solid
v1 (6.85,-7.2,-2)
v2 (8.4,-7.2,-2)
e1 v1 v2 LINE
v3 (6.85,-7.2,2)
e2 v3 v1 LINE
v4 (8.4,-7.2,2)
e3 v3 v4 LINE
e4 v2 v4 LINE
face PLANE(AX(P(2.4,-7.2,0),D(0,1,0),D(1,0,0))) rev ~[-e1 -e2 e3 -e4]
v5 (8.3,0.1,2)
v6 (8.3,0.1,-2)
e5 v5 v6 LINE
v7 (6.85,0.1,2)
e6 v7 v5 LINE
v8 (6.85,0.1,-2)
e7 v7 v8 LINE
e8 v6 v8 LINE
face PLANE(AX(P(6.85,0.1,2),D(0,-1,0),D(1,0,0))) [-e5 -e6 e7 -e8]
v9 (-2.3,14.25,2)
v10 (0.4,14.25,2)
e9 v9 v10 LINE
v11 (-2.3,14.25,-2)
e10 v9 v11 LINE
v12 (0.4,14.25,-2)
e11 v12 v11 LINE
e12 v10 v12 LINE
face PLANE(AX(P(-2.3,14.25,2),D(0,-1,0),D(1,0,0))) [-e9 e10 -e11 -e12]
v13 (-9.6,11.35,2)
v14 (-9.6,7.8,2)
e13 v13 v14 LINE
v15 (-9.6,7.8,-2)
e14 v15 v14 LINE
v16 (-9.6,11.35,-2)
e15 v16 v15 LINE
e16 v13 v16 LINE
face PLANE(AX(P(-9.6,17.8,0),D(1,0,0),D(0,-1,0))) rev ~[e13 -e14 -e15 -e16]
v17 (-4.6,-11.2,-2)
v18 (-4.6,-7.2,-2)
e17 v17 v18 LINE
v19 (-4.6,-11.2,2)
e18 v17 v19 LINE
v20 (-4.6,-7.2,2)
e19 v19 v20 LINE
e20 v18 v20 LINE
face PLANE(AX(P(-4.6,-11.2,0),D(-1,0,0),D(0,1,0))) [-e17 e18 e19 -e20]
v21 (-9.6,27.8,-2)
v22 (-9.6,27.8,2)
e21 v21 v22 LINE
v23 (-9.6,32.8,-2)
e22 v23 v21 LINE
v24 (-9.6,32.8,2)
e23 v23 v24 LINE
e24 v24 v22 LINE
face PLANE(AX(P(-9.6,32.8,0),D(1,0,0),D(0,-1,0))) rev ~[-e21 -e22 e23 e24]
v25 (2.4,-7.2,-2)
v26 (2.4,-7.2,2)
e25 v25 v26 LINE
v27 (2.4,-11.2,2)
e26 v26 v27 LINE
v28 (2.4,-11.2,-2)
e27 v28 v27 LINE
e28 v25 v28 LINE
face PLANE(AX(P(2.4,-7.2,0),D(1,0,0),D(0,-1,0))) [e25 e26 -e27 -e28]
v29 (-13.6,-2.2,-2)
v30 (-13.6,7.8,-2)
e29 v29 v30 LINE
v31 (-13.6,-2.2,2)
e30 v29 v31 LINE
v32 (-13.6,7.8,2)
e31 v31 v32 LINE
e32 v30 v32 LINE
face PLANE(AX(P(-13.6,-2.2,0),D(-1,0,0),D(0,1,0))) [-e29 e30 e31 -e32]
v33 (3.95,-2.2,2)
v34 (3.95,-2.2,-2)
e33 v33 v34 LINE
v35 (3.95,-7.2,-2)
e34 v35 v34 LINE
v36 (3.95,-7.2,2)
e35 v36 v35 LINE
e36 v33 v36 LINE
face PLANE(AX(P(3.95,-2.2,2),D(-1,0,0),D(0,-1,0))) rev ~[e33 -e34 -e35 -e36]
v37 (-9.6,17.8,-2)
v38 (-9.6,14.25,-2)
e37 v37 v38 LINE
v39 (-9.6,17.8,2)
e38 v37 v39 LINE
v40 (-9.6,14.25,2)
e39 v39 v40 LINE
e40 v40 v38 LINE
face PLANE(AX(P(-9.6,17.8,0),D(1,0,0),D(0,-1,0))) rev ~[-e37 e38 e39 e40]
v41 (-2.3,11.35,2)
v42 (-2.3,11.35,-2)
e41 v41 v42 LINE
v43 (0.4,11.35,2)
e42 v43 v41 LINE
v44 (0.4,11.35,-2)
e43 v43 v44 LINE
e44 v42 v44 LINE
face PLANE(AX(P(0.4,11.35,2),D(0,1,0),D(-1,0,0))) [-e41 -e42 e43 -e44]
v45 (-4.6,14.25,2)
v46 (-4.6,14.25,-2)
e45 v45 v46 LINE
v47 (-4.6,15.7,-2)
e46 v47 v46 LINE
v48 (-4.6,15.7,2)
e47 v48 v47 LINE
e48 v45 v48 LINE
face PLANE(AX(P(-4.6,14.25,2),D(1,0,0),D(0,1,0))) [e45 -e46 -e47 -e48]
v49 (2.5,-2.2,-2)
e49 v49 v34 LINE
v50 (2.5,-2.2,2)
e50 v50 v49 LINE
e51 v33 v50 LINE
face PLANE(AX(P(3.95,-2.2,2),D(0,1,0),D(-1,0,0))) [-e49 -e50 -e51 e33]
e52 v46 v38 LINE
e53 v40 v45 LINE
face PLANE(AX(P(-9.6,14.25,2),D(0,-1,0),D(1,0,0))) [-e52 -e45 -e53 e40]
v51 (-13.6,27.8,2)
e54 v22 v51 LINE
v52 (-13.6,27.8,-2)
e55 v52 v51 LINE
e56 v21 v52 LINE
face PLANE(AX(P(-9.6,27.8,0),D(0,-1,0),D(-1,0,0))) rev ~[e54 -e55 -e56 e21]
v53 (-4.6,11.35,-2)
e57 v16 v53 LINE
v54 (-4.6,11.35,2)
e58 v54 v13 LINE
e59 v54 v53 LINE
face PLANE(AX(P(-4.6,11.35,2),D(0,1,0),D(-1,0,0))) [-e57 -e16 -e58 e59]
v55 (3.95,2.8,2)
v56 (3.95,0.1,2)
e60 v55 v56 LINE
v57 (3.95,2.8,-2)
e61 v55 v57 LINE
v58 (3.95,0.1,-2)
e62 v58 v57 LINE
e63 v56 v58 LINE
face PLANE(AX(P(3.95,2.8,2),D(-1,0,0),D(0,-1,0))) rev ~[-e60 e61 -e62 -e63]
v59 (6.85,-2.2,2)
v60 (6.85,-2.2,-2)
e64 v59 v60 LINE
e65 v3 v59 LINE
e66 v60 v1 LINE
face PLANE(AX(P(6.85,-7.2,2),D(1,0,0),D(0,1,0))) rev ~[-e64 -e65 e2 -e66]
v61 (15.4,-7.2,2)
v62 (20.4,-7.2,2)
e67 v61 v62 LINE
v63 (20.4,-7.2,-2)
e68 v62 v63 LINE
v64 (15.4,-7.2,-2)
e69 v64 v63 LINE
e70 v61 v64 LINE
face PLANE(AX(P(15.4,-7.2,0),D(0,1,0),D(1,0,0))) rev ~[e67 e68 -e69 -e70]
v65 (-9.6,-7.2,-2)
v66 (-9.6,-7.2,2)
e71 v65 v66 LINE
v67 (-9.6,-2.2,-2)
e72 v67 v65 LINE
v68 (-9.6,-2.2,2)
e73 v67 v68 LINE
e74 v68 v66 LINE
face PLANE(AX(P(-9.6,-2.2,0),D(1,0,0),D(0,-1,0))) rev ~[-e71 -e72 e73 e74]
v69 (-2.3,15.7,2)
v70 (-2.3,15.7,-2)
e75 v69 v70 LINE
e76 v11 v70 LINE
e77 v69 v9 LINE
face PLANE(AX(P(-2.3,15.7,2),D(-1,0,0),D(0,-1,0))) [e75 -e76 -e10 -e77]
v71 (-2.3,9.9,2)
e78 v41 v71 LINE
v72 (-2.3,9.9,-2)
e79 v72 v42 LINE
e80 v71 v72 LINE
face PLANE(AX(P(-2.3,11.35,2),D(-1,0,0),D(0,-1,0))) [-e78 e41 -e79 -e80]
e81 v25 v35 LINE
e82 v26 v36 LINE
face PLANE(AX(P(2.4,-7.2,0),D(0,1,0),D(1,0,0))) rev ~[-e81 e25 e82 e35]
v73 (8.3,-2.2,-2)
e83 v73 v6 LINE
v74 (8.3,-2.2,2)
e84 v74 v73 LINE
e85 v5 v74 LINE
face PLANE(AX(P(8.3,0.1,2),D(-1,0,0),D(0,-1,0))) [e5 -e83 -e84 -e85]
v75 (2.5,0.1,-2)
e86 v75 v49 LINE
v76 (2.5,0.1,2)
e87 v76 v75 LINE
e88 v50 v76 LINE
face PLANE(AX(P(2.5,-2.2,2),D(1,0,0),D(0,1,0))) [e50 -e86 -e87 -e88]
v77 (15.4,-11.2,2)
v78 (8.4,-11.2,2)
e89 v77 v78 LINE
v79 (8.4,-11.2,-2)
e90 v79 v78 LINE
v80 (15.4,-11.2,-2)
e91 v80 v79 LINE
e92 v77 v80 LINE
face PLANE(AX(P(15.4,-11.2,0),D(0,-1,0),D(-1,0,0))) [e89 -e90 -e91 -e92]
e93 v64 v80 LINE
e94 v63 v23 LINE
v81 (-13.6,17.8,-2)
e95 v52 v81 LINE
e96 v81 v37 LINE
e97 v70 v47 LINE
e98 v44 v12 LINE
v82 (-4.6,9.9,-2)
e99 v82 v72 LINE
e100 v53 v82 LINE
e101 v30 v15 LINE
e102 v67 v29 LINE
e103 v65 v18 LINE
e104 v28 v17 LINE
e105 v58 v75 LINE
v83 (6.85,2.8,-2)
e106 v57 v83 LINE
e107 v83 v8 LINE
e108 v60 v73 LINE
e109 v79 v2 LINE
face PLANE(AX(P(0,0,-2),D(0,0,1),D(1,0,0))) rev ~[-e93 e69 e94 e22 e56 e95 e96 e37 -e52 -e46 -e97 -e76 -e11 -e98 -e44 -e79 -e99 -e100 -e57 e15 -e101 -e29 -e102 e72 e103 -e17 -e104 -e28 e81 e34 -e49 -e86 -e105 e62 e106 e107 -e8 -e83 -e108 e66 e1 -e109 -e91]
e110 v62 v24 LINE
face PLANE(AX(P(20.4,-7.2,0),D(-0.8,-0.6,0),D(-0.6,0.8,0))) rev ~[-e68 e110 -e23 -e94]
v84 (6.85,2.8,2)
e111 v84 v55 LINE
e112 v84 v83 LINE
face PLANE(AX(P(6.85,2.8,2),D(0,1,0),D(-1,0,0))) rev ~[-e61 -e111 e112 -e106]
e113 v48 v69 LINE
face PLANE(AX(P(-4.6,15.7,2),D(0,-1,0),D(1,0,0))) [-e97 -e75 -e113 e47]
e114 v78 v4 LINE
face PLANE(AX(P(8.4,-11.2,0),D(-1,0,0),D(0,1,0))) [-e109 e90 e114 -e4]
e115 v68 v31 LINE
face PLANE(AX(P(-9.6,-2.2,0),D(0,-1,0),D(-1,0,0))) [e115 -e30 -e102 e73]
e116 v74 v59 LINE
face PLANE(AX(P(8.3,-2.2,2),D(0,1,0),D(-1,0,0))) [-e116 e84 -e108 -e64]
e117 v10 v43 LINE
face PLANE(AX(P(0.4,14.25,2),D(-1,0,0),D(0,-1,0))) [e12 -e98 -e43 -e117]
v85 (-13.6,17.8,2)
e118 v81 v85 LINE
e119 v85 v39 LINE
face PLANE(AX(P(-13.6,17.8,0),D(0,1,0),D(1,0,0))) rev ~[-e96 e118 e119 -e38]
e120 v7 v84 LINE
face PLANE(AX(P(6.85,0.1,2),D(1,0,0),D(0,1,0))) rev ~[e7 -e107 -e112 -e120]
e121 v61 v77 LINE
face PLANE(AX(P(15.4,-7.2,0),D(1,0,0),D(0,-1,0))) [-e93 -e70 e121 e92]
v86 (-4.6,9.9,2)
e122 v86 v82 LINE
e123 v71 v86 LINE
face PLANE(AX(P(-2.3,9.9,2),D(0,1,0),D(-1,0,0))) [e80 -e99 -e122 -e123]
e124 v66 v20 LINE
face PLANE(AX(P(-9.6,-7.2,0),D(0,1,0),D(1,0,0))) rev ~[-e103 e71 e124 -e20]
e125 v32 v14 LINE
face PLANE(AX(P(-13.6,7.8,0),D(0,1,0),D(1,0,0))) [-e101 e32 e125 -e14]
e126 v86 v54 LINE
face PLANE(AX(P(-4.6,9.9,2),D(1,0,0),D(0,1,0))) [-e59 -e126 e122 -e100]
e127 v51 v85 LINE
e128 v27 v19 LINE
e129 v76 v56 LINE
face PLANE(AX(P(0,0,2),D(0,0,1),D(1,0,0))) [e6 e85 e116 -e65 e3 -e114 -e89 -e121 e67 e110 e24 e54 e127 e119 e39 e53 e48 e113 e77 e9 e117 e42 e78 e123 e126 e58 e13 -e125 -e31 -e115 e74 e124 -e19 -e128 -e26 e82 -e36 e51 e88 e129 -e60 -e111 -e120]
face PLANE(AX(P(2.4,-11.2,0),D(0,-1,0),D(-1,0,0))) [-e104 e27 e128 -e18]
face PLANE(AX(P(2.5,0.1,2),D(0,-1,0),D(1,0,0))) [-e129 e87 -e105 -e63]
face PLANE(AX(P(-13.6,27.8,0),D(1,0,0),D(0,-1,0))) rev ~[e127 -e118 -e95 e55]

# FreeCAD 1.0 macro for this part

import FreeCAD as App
import Part
import Sketcher

V = App.Vector


def add_polygon(sketch, points):
    """Adds a closed chain of lines whose ends are joined by coincident constraints."""
    first, n = sketch.GeometryCount, len(points)
    for a, b in zip(points, points[1:] + points[:1]):
        sketch.addGeometry(Part.LineSegment(App.Vector(*a, 0), App.Vector(*b, 0)), False)
    for i in range(n):
        sketch.addConstraint(Sketcher.Constraint("Coincident", first + i, 2, first + (i + 1) % n, 1))

doc = App.newDocument("Part")
body = doc.addObject("PartDesign::Body", "Body")

# Sketch on XY plane
sketch1 = body.newObject("Sketcher::SketchObject", "Sketch")
sketch1.AttachmentSupport = (doc.getObject("XY_Plane"), [""])
sketch1.MapMode = "FlatFace"
add_polygon(sketch1, [(20.4, -7.2), (-9.6, 32.8), (-9.6, 27.8), (-13.6, 27.8), (-13.6, 17.8), (-9.6, 17.8), (-9.6, 7.8), (-13.6, 7.8), (-13.6, -2.2), (-9.6, -2.2), (-9.6, -7.2), (-4.6, -7.2), (-4.6, -11.2), (2.4, -11.2), (2.4, -7.2), (8.4, -7.2), (8.4, -11.2), (15.4, -11.2), (15.4, -7.2)])  # lines 0-18
sketch1.addConstraint([
    Sketcher.Constraint("Vertical", 1),
    Sketcher.Constraint("Horizontal", 2),
    Sketcher.Constraint("Vertical", 3),
    Sketcher.Constraint("Horizontal", 4),
    Sketcher.Constraint("Vertical", 5),
    Sketcher.Constraint("Horizontal", 6),
    Sketcher.Constraint("Vertical", 7),
    Sketcher.Constraint("Horizontal", 8),
    Sketcher.Constraint("Vertical", 9),
    Sketcher.Constraint("Horizontal", 10),
    Sketcher.Constraint("Vertical", 11),
    Sketcher.Constraint("Horizontal", 12),
    Sketcher.Constraint("Vertical", 13),
    Sketcher.Constraint("Horizontal", 14),
    Sketcher.Constraint("Vertical", 15),
    Sketcher.Constraint("Horizontal", 16),
    Sketcher.Constraint("Vertical", 17),
    Sketcher.Constraint("Horizontal", 18),
    Sketcher.Constraint("Horizontal", 10, 2, 13, 2),
    Sketcher.Constraint("Horizontal", 12, 2, 15, 2),
    Sketcher.Constraint("Horizontal", 14, 2, 17, 2),
    Sketcher.Constraint("Vertical", 1, 2, 4, 2),
    Sketcher.Constraint("Vertical", 3, 2, 6, 2),
    Sketcher.Constraint("Vertical", 5, 2, 8, 2),
    Sketcher.Constraint("Equal", 12, 16),
    Sketcher.Constraint("Equal", 10, 18),
    Sketcher.Constraint("Equal", 18, 1),
    Sketcher.Constraint("Equal", 3, 5),
    Sketcher.Constraint("Equal", 5, 7),
    Sketcher.Constraint("Equal", 1, 9),
    Sketcher.Constraint("Equal", 8, 11),
    Sketcher.Constraint("DistanceX", 2, 2, 2, 1, 4.0),
    Sketcher.Constraint("DistanceX", 10, 1, 10, 2, 5.0),
    Sketcher.Constraint("DistanceX", 12, 1, 12, 2, 7.0),
    Sketcher.Constraint("DistanceY", 3, 2, 3, 1, 10.0),
    Sketcher.Constraint("DistanceX", 14, 1, 14, 2, 6.0),
    Sketcher.Constraint("DistanceX", 0, 2, -1, 1, 9.6),
    Sketcher.Constraint("DistanceY", -1, 1, 0, 2, 32.8),
])
pad1 = body.newObject("PartDesign::Pad", "Pad")
pad1.Profile = sketch1
pad1.Length = 4
pad1.Midplane = True

# Sketch on XY plane
sketch2 = body.newObject("Sketcher::SketchObject", "Sketch001")
sketch2.AttachmentSupport = (doc.getObject("XY_Plane"), [""])
sketch2.MapMode = "FlatFace"
sketch2.AttachmentOffset = App.Placement(V(0, 0, 2), App.Rotation())
add_polygon(sketch2, [(-4.6, 14.2), (-9.6, 14.2), (-9.6, 11.3), (-4.6, 11.3), (-4.6, 9.9), (-2.3, 9.9), (-2.3, 11.3), (0.4, 11.3), (0.4, 14.2), (-2.3, 14.2), (-2.3, 15.7), (-4.6, 15.7)])  # lines 0-11
add_polygon(sketch2, [(4, -2.2), (4, -7.2), (6.8, -7.2), (6.8, -2.2), (8.3, -2.2), (8.3, 0.1), (6.8, 0.1), (6.8, 2.8), (4, 2.8), (4, 0.1), (2.5, 0.1), (2.5, -2.2)])  # lines 12-23
sketch2.addConstraint([
    Sketcher.Constraint("Horizontal", 0),
    Sketcher.Constraint("Vertical", 1),
    Sketcher.Constraint("Horizontal", 2),
    Sketcher.Constraint("Vertical", 3),
    Sketcher.Constraint("Horizontal", 4),
    Sketcher.Constraint("Vertical", 5),
    Sketcher.Constraint("Horizontal", 6),
    Sketcher.Constraint("Vertical", 7),
    Sketcher.Constraint("Horizontal", 8),
    Sketcher.Constraint("Vertical", 9),
    Sketcher.Constraint("Horizontal", 10),
    Sketcher.Constraint("Vertical", 11),
    Sketcher.Constraint("Vertical", 12),
    Sketcher.Constraint("Horizontal", 13),
    Sketcher.Constraint("Vertical", 14),
    Sketcher.Constraint("Horizontal", 15),
    Sketcher.Constraint("Vertical", 16),
    Sketcher.Constraint("Horizontal", 17),
    Sketcher.Constraint("Vertical", 18),
    Sketcher.Constraint("Horizontal", 19),
    Sketcher.Constraint("Vertical", 20),
    Sketcher.Constraint("Horizontal", 21),
    Sketcher.Constraint("Vertical", 22),
    Sketcher.Constraint("Horizontal", 23),
    Sketcher.Constraint("Horizontal", 2, 2, 5, 2),
    Sketcher.Constraint("Horizontal", 0, 2, 7, 2),
    Sketcher.Constraint("Horizontal", 17, 2, 20, 2),
    Sketcher.Constraint("Horizontal", 15, 2, 22, 2),
    Sketcher.Constraint("Vertical", 5, 2, 8, 2),
    Sketcher.Constraint("Vertical", 3, 2, 10, 2),
    Sketcher.Constraint("Vertical", 14, 2, 17, 2),
    Sketcher.Constraint("Vertical", 12, 2, 19, 2),
    Sketcher.Constraint("Equal", 17, 21),
    Sketcher.Constraint("Equal", 19, 1),
    Sketcher.Constraint("Equal", 23, 3),
    Sketcher.Constraint("Equal", 5, 9),
    Sketcher.Constraint("Equal", 2, 12),
    Sketcher.Constraint("Equal", 10, 16),
    Sketcher.Constraint("Equal", 8, 18),
    Sketcher.Constraint("DistanceX", 0, 2, 0, 1, 5.0),
    Sketcher.Constraint("DistanceX", 4, 1, 4, 2, 2.3),
    Sketcher.Constraint("DistanceX", 13, 1, 13, 2, 2.9),
    Sketcher.Constraint("DistanceX", 2, 2, 6, 2, 5.0),
    Sketcher.Constraint("DistanceX", 4, 2, -1, 1, 2.3),
    Sketcher.Constraint("DistanceX", 15, 1, 15, 2, 1.45),
    Sketcher.Constraint("DistanceY", -1, 1, 3, 2, 9.9),
    Sketcher.Constraint("DistanceY", 12, 2, -1, 1, 7.2),
    Sketcher.Constraint("DistanceX", -1, 1, 15, 2, 8.3),
])
pocket1 = body.newObject("PartDesign::Pocket", "Pocket")
pocket1.Profile = sketch2
pocket1.Type = "UpToFirst"

doc.recompute()
